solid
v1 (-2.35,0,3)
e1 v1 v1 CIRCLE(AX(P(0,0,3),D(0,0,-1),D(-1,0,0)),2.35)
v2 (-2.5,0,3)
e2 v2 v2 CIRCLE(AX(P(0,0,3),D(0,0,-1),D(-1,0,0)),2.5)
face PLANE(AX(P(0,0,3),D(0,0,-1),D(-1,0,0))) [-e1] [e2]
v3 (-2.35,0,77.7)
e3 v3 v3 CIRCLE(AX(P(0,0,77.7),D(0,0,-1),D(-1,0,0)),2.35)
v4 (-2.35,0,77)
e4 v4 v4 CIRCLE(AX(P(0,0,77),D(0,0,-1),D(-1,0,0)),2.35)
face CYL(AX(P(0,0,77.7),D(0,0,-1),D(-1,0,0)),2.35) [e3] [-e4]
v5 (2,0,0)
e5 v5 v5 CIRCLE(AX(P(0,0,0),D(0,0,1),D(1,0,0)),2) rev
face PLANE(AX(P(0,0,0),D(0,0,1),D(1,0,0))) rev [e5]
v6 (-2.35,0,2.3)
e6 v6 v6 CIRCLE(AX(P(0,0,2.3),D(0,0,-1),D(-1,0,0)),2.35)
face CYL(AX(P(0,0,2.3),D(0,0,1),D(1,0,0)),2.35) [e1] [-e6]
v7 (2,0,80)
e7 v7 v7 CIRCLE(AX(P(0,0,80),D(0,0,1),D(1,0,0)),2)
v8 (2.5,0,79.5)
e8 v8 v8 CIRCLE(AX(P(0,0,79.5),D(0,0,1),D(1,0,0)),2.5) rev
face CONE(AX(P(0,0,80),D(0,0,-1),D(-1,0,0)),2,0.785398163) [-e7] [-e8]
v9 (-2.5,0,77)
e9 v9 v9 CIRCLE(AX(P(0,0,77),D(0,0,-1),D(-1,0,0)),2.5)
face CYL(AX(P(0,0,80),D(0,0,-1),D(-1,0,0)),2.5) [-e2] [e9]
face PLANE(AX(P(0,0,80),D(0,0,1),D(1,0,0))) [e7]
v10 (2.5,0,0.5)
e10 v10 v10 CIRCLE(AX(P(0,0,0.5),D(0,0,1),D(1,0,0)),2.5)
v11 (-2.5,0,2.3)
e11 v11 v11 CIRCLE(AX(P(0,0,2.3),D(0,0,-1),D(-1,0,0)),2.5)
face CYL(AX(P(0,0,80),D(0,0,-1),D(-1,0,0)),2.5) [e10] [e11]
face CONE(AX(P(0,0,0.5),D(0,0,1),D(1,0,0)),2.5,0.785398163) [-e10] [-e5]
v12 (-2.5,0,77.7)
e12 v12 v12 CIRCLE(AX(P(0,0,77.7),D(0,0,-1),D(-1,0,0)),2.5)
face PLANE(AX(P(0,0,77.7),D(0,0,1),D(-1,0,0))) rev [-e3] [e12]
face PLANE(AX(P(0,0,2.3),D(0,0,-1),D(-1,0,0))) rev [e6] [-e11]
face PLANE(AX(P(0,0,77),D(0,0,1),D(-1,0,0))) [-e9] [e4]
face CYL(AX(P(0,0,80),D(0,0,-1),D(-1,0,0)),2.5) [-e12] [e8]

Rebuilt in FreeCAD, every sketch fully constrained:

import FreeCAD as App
import Part
import Sketcher

V = App.Vector


def edges_at(feature, points):
    """Names of the edges that pass closest to the given points."""
    edges = feature.Shape.Edges
    near = lambda p: min(range(len(edges)), key=lambda i: edges[i].distToShape(Part.Vertex(*p))[0])
    return sorted({f"Edge{near(p) + 1}" for p in points})

doc = App.newDocument("Part")
body = doc.addObject("PartDesign::Body", "Body")

sketch1 = body.newObject("Sketcher::SketchObject", "Sketch")
sketch1.AttachmentSupport = (doc.getObject("XY_Plane"), [""])
sketch1.MapMode = "FlatFace"
sketch1.addGeometry(Part.Circle(V(0, 0, 0), V(0, 0, 1), 2.5), False)
sketch1.addConstraint([
    Sketcher.Constraint("Coincident", 0, 3, -1, 1),
    Sketcher.Constraint("Diameter", 0, 5.0),
])
pad1 = body.newObject("PartDesign::Pad", "Pad")
pad1.Profile = sketch1
pad1.Length = 80
doc.recompute()

chamfer = body.newObject("PartDesign::Chamfer", "Chamfer")
chamfer.Base = (pad1, edges_at(pad1, [(-2.5, 0, 0), (-2.5, 0, 80)]))
chamfer.Size = 0.5

sketch2 = body.newObject("Sketcher::SketchObject", "Sketch001")
sketch2.AttachmentSupport = (doc.getObject("XY_Plane"), [""])
sketch2.MapMode = "FlatFace"
sketch2.AttachmentOffset = App.Placement(V(0, 0, 2.3), App.Rotation())
sketch2.addGeometry([
    Part.Circle(V(0, 0, 0), V(0, 0, 1), 2.5),
    Part.Circle(V(0, 0, 0), V(0, 0, 1), 2.4),
], False)
sketch2.addConstraint([
    Sketcher.Constraint("Coincident", 0, 3, -1, 1),
    Sketcher.Constraint("Coincident", 1, 3, -1, 1),
    Sketcher.Constraint("Diameter", 0, 5.0),
    Sketcher.Constraint("Diameter", 1, 4.7),
])
pocket1 = body.newObject("PartDesign::Pocket", "Pocket")
pocket1.Profile = sketch2
pocket1.Length = 0.7
pocket1.Reversed = True
doc.recompute()

datumplane = body.newObject("PartDesign::Plane", "DatumPlane")
datumplane.AttachmentSupport = (doc.getObject("XY_Plane"), [""])
datumplane.MapMode = "FlatFace"
datumplane.AttachmentOffset = App.Placement(V(0, 0, 40), App.Rotation())
mirrored = body.newObject("PartDesign::Mirrored", "Mirrored")
mirrored.Originals = [pocket1]
mirrored.MirrorPlane = (datumplane, [""])
body.Tip = mirrored

doc.recompute()
